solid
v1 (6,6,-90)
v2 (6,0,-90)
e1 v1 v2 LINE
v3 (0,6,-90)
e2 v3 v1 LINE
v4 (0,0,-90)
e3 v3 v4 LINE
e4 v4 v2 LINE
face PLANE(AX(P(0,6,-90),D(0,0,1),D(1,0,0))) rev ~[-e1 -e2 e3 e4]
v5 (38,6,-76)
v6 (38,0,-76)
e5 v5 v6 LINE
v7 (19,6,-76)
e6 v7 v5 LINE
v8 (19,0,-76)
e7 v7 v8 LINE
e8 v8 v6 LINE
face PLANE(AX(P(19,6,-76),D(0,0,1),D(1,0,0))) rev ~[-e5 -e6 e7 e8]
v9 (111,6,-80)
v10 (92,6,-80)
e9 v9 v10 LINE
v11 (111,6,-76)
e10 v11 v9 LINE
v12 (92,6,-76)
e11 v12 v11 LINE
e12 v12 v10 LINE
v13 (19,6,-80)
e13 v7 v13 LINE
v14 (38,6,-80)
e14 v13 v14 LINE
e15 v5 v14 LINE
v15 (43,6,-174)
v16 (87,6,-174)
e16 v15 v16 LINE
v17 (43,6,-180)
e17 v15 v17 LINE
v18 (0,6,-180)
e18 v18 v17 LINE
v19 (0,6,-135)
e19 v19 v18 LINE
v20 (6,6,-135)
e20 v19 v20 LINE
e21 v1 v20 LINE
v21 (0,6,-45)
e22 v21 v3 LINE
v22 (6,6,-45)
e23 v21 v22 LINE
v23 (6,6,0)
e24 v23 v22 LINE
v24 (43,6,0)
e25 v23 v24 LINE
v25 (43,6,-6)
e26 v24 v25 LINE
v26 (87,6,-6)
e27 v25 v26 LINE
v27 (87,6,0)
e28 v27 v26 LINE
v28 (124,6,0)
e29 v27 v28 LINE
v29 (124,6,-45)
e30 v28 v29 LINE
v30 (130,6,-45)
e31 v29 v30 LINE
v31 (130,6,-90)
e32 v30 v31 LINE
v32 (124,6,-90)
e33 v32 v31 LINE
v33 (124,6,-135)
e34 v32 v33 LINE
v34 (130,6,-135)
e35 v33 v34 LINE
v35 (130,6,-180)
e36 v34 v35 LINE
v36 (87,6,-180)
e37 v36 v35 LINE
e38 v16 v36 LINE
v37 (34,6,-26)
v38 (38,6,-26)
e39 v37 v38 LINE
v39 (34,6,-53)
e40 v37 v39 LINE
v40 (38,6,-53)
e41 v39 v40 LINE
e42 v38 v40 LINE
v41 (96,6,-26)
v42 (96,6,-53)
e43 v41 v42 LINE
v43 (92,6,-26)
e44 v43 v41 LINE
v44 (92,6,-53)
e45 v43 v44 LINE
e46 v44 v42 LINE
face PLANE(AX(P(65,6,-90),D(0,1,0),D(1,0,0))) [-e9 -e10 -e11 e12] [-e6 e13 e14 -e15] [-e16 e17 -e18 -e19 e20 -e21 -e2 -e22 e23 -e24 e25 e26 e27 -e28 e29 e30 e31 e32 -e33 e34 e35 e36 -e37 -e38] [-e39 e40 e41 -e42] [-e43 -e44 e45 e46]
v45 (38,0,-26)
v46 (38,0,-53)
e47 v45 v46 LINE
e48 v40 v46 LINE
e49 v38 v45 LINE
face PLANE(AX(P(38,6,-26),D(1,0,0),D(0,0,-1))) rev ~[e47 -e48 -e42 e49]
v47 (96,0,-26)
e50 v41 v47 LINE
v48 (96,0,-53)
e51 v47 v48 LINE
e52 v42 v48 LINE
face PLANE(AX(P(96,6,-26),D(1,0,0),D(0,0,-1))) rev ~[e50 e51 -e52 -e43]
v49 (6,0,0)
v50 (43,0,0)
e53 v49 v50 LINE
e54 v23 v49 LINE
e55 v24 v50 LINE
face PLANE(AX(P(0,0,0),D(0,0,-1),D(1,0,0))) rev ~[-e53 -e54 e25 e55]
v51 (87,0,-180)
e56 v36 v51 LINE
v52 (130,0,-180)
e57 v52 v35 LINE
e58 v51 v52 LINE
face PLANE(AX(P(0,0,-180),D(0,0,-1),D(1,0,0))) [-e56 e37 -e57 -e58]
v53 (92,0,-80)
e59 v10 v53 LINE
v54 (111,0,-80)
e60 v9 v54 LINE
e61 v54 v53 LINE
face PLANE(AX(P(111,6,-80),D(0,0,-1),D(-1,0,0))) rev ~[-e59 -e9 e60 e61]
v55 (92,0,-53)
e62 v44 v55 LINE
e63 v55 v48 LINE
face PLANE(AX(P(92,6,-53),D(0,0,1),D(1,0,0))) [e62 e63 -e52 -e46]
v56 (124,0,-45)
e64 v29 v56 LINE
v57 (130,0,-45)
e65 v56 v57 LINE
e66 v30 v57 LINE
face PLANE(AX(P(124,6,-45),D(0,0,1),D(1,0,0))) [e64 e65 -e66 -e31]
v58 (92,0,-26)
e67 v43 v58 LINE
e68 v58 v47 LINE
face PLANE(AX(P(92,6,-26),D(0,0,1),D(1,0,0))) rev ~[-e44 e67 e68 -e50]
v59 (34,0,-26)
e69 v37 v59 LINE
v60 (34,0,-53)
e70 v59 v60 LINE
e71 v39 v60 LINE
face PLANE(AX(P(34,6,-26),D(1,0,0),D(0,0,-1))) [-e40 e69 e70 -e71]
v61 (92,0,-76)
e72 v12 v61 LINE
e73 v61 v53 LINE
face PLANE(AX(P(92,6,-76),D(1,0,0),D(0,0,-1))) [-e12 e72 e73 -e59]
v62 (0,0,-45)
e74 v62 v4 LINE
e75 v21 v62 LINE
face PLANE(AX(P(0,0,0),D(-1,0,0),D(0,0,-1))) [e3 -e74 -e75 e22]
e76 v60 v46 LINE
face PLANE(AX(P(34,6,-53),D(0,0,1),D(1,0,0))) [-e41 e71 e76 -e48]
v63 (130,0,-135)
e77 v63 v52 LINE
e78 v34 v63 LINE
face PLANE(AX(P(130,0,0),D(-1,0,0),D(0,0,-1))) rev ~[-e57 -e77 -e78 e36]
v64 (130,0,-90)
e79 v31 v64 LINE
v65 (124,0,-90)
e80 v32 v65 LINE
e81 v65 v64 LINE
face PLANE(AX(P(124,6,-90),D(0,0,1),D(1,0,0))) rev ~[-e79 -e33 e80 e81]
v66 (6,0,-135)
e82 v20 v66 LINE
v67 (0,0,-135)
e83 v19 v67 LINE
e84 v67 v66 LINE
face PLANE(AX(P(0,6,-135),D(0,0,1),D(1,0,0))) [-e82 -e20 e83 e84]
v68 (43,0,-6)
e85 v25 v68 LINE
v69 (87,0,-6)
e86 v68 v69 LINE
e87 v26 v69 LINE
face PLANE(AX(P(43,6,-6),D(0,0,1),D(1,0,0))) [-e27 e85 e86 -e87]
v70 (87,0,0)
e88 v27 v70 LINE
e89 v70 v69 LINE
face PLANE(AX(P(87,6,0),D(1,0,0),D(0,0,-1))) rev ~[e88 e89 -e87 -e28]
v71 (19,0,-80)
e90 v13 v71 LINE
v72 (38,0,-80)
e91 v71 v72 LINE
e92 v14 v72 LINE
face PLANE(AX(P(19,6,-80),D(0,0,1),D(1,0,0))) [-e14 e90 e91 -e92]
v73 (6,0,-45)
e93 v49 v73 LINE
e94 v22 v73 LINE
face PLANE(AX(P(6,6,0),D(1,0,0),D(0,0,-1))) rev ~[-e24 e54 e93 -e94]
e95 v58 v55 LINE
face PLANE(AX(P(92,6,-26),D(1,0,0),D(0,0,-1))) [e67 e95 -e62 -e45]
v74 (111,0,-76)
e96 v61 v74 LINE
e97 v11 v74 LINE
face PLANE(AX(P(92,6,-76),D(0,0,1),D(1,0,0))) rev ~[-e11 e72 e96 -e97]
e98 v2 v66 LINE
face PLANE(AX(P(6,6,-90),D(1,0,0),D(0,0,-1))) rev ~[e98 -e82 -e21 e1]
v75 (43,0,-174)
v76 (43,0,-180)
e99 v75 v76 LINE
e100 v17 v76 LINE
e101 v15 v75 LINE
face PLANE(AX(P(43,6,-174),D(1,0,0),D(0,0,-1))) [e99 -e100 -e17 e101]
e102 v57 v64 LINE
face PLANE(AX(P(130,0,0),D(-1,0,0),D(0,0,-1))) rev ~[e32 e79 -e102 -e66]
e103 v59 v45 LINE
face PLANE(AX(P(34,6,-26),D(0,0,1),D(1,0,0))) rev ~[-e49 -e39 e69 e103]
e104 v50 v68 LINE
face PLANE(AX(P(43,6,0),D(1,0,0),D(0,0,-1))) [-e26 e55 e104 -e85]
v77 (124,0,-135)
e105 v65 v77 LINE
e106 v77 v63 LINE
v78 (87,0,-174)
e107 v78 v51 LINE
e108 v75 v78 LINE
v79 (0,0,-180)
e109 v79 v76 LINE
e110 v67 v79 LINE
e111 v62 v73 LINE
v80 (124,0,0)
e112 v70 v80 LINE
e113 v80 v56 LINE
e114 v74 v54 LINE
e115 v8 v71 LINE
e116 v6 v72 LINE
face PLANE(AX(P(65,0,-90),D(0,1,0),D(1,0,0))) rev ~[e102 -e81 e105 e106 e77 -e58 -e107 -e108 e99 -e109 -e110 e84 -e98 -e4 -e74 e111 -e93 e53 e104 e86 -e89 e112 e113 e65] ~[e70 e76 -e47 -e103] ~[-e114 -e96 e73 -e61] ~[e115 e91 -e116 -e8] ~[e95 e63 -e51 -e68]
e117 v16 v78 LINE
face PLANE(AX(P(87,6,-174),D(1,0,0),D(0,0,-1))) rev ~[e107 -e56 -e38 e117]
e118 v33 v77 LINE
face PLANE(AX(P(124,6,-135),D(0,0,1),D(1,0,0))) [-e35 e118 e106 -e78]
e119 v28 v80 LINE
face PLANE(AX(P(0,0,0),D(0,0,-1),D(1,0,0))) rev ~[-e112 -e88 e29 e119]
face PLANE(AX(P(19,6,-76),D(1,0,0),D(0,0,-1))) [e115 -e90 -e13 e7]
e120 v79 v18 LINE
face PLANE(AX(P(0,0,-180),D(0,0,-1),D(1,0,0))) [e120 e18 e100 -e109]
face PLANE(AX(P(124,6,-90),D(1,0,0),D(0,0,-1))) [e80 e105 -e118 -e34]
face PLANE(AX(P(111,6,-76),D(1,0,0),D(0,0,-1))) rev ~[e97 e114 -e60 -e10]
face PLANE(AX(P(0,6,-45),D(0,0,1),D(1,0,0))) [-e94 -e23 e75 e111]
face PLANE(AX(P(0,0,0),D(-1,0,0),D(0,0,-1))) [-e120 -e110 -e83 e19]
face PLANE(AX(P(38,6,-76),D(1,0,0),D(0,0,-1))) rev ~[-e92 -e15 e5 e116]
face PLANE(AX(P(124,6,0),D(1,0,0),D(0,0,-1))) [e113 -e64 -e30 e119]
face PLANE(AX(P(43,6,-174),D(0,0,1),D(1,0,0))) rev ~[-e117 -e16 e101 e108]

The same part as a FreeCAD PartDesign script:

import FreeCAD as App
import Part
import Sketcher
from FreeCAD import Vector


def add_polygon(sketch, points):
    """Adds a closed chain of lines whose ends are joined by coincident constraints."""
    first, n = sketch.GeometryCount, len(points)
    for a, b in zip(points, points[1:] + points[:1]):
        sketch.addGeometry(Part.LineSegment(App.Vector(*a, 0), App.Vector(*b, 0)), False)
    for i in range(n):
        sketch.addConstraint(Sketcher.Constraint("Coincident", first + i, 2, first + (i + 1) % n, 1))

doc = App.newDocument("Part")
body = doc.addObject("PartDesign::Body", "Body")

sketch1 = body.newObject("Sketcher::SketchObject", "Sketch")
sketch1.AttachmentSupport = (doc.getObject("XZ_Plane"), [""])
sketch1.MapMode = "FlatFace"
add_polygon(sketch1, [(0, -180), (0, 0), (130, 0), (130, -180)])
sketch1.addConstraint(Sketcher.Constraint("Vertical", 0))
sketch1.addConstraint(Sketcher.Constraint("Horizontal", 1))
sketch1.addConstraint(Sketcher.Constraint("Vertical", 2))
sketch1.addConstraint(Sketcher.Constraint("Horizontal", 3))
sketch1.addConstraint(Sketcher.Constraint("Coincident", 0, 2, -1, 1))
sketch1.addConstraint(Sketcher.Constraint("DistanceX", 1, 1, 1, 2, 130.0))
sketch1.addConstraint(Sketcher.Constraint("DistanceY", 0, 1, 0, 2, 180.0))
pad1 = body.newObject("PartDesign::Pad", "Pad")
pad1.Profile = sketch1
pad1.Length = 6
pad1.Reversed = True

sketch2 = body.newObject("Sketcher::SketchObject", "Sketch001")
sketch2.AttachmentSupport = (doc.getObject("XZ_Plane"), [""])
sketch2.MapMode = "FlatFace"
sketch2.AttachmentOffset = App.Placement(Vector(0, 0, -6), App.Rotation())
add_polygon(sketch2, [(0, -135), (0, -90), (6, -90), (6, -135)])
add_polygon(sketch2, [(0, -45), (0, 0), (6, 0), (6, -45)])
add_polygon(sketch2, [(124, -45), (124, 0), (130, 0), (130, -45)])
add_polygon(sketch2, [(43, -6), (43, 0), (87, 0), (87, -6)])
add_polygon(sketch2, [(124, -135), (124, -90), (130, -90), (130, -135)])
add_polygon(sketch2, [(111, -76), (111, -80), (92, -80), (92, -76)])
add_polygon(sketch2, [(19, -80), (19, -76), (38, -76), (38, -80)])
add_polygon(sketch2, [(34, -53), (34, -26), (38, -26), (38, -53)])
add_polygon(sketch2, [(92, -53), (92, -26), (96, -26), (96, -53)])
add_polygon(sketch2, [(43, -180), (43, -174), (87, -174), (87, -180)])
sketch2.addConstraint(Sketcher.Constraint("Vertical", 0))
sketch2.addConstraint(Sketcher.Constraint("Horizontal", 1))
sketch2.addConstraint(Sketcher.Constraint("Vertical", 2))
sketch2.addConstraint(Sketcher.Constraint("Horizontal", 3))
sketch2.addConstraint(Sketcher.Constraint("Vertical", 4))
sketch2.addConstraint(Sketcher.Constraint("Horizontal", 5))
sketch2.addConstraint(Sketcher.Constraint("Vertical", 6))
sketch2.addConstraint(Sketcher.Constraint("Horizontal", 7))
sketch2.addConstraint(Sketcher.Constraint("Vertical", 8))
sketch2.addConstraint(Sketcher.Constraint("Horizontal", 9))
sketch2.addConstraint(Sketcher.Constraint("Vertical", 10))
sketch2.addConstraint(Sketcher.Constraint("Horizontal", 11))
sketch2.addConstraint(Sketcher.Constraint("Vertical", 12))
sketch2.addConstraint(Sketcher.Constraint("Horizontal", 13))
sketch2.addConstraint(Sketcher.Constraint("Vertical", 14))
sketch2.addConstraint(Sketcher.Constraint("Horizontal", 15))
sketch2.addConstraint(Sketcher.Constraint("Vertical", 16))
sketch2.addConstraint(Sketcher.Constraint("Horizontal", 17))
sketch2.addConstraint(Sketcher.Constraint("Vertical", 18))
sketch2.addConstraint(Sketcher.Constraint("Horizontal", 19))
sketch2.addConstraint(Sketcher.Constraint("Vertical", 20))
sketch2.addConstraint(Sketcher.Constraint("Horizontal", 21))
sketch2.addConstraint(Sketcher.Constraint("Vertical", 22))
sketch2.addConstraint(Sketcher.Constraint("Horizontal", 23))
sketch2.addConstraint(Sketcher.Constraint("Vertical", 24))
sketch2.addConstraint(Sketcher.Constraint("Horizontal", 25))
sketch2.addConstraint(Sketcher.Constraint("Vertical", 26))
sketch2.addConstraint(Sketcher.Constraint("Horizontal", 27))
sketch2.addConstraint(Sketcher.Constraint("Vertical", 28))
sketch2.addConstraint(Sketcher.Constraint("Horizontal", 29))
sketch2.addConstraint(Sketcher.Constraint("Vertical", 30))
sketch2.addConstraint(Sketcher.Constraint("Horizontal", 31))
sketch2.addConstraint(Sketcher.Constraint("Vertical", 32))
sketch2.addConstraint(Sketcher.Constraint("Horizontal", 33))
sketch2.addConstraint(Sketcher.Constraint("Vertical", 34))
sketch2.addConstraint(Sketcher.Constraint("Horizontal", 35))
sketch2.addConstraint(Sketcher.Constraint("Vertical", 36))
sketch2.addConstraint(Sketcher.Constraint("Horizontal", 37))
sketch2.addConstraint(Sketcher.Constraint("Vertical", 38))
sketch2.addConstraint(Sketcher.Constraint("Horizontal", 39))
sketch2.addConstraint(Sketcher.Constraint("Coincident", 4, 2, -1, 1))
sketch2.addConstraint(Sketcher.Constraint("PointOnObject", 0, 2, -2))
sketch2.addConstraint(Sketcher.Constraint("PointOnObject", 8, 2, -1))
sketch2.addConstraint(Sketcher.Constraint("PointOnObject", 12, 2, -1))
sketch2.addConstraint(Sketcher.Constraint("Horizontal", 7, 2, 10, 2))
sketch2.addConstraint(Sketcher.Constraint("Horizontal", 1, 2, 16, 2))
sketch2.addConstraint(Sketcher.Constraint("Horizontal", 3, 2, 18, 2))
sketch2.addConstraint(Sketcher.Constraint("Horizontal", 23, 2, 24, 2))
sketch2.addConstraint(Sketcher.Constraint("Horizontal", 21, 2, 26, 2))
sketch2.addConstraint(Sketcher.Constraint("Horizontal", 29, 2, 32, 2))
sketch2.addConstraint(Sketcher.Constraint("Horizontal", 31, 2, 34, 2))
sketch2.addConstraint(Sketcher.Constraint("Vertical", 2, 2, 5, 2))
sketch2.addConstraint(Sketcher.Constraint("Vertical", 11, 2, 16, 2))
sketch2.addConstraint(Sketcher.Constraint("Vertical", 10, 2, 17, 2))
sketch2.addConstraint(Sketcher.Constraint("Vertical", 26, 2, 29, 2))
sketch2.addConstraint(Sketcher.Constraint("Vertical", 22, 2, 32, 2))
sketch2.addConstraint(Sketcher.Constraint("Vertical", 15, 2, 36, 2))
sketch2.addConstraint(Sketcher.Constraint("Vertical", 14, 2, 37, 2))
sketch2.addConstraint(Sketcher.Constraint("Equal", 7, 9))
sketch2.addConstraint(Sketcher.Constraint("Equal", 23, 25))
sketch2.addConstraint(Sketcher.Constraint("Equal", 31, 33))
sketch2.addConstraint(Sketcher.Constraint("Equal", 2, 4))
sketch2.addConstraint(Sketcher.Constraint("Equal", 19, 12))
sketch2.addConstraint(Sketcher.Constraint("Equal", 35, 20))
sketch2.addConstraint(Sketcher.Constraint("Equal", 14, 36))
sketch2.addConstraint(Sketcher.Constraint("DistanceX", 1, 1, 1, 2, 6.0))
sketch2.addConstraint(Sketcher.Constraint("DistanceX", 13, 1, 13, 2, 44.0))
sketch2.addConstraint(Sketcher.Constraint("DistanceX", 21, 2, 21, 1, 19.0))
sketch2.addConstraint(Sketcher.Constraint("DistanceX", 29, 1, 29, 2, 4.0))
sketch2.addConstraint(Sketcher.Constraint("DistanceY", 0, 1, 0, 2, 45.0))
sketch2.addConstraint(Sketcher.Constraint("DistanceY", 28, 1, 28, 2, 27.0))
sketch2.addConstraint(Sketcher.Constraint("DistanceY", 0, 2, -1, 1, 90.0))
sketch2.addConstraint(Sketcher.Constraint("DistanceX", -1, 1, 8, 2, 124.0))
sketch2.addConstraint(Sketcher.Constraint("DistanceX", -1, 1, 12, 2, 43.0))
sketch2.addConstraint(Sketcher.Constraint("DistanceX", -1, 1, 20, 2, 111.0))
sketch2.addConstraint(Sketcher.Constraint("DistanceY", 20, 2, -1, 1, 80.0))
sketch2.addConstraint(Sketcher.Constraint("DistanceX", -1, 1, 24, 2, 19.0))
sketch2.addConstraint(Sketcher.Constraint("DistanceY", 28, 2, -1, 1, 26.0))
sketch2.addConstraint(Sketcher.Constraint("DistanceY", 36, 2, -1, 1, 174.0))
pocket1 = body.newObject("PartDesign::Pocket", "Pocket")
pocket1.Profile = sketch2
pocket1.Type = "ThroughAll"
pocket1.Reversed = True

doc.recompute()
